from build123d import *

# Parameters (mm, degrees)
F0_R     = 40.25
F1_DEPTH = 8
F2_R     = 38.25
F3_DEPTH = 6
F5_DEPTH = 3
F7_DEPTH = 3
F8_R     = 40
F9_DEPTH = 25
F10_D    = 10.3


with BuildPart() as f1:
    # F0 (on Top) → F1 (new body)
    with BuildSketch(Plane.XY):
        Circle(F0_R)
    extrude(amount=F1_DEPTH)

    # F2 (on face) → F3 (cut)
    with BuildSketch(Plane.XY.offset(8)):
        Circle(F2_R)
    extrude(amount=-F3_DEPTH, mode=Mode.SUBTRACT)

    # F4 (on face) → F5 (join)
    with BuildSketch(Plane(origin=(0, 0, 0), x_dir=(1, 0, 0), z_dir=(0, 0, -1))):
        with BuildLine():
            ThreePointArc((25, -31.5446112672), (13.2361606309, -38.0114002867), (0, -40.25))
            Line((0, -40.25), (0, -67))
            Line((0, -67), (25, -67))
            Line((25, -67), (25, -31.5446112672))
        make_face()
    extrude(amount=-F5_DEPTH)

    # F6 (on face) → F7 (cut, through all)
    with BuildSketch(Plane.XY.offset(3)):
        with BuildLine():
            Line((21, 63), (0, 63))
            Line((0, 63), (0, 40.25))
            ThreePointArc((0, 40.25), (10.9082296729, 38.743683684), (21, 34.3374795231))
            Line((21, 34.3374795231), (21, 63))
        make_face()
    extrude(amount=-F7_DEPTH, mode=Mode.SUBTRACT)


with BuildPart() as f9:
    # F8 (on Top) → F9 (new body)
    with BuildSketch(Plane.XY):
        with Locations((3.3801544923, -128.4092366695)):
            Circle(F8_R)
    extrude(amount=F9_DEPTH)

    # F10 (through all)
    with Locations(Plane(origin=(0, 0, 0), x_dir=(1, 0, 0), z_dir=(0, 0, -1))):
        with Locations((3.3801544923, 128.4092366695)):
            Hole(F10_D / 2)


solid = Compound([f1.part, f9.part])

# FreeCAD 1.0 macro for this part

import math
import FreeCAD as App
import Part
import Sketcher
from FreeCAD import Vector
Q = App.Units.Quantity

doc = App.newDocument("Part")
body = doc.addObject("PartDesign::Body", "Body")

sketch1 = body.newObject("Sketcher::SketchObject", "Sketch")
sketch1.AttachmentSupport = (doc.getObject("XY_Plane"), [""])
sketch1.MapMode = "FlatFace"
sketch1.addGeometry(Part.Circle(Vector(0, 0, 0), Vector(0, 0, 1), 40), False)
sketch1.addConstraint(Sketcher.Constraint("Coincident", 0, 3, -1, 1))
sketch1.addConstraint(Sketcher.Constraint("Diameter", 0, Q("80.5 mm")))
pad1 = body.newObject("PartDesign::Pad", "Pad")
pad1.Profile = sketch1
pad1.Length = 8

sketch2 = body.newObject("Sketcher::SketchObject", "Sketch001")
sketch2.AttachmentSupport = (doc.getObject("XY_Plane"), [""])
sketch2.MapMode = "FlatFace"
sketch2.AttachmentOffset = App.Placement(Vector(0, 0, 8), App.Rotation())
sketch2.addGeometry(Part.Circle(Vector(0, 0, 0), Vector(0, 0, 1), 38), False)
sketch2.addConstraint(Sketcher.Constraint("Coincident", 0, 3, -1, 1))
sketch2.addConstraint(Sketcher.Constraint("Diameter", 0, Q("76.5 mm")))
pocket1 = body.newObject("PartDesign::Pocket", "Pocket")
pocket1.Profile = sketch2
pocket1.Length = 6

sketch3 = body.newObject("Sketcher::SketchObject", "Sketch002")
sketch3.AttachmentSupport = (doc.getObject("XY_Plane"), [""])
sketch3.MapMode = "FlatFace"
sketch3.addGeometry(Part.ArcOfCircle(Part.Circle(Vector(0, 0, 0), Vector(0, 0, 1), 40), math.radians(52), math.radians(90)), False)
sketch3.addGeometry(Part.LineSegment(Vector(0, 40, 0), Vector(0, 67, 0)), False)
sketch3.addGeometry(Part.LineSegment(Vector(0, 67, 0), Vector(25, 67, 0)), False)
sketch3.addGeometry(Part.LineSegment(Vector(25, 67, 0), Vector(25, 32, 0)), False)
sketch3.addConstraint(Sketcher.Constraint("Coincident", 0, 2, 1, 1))
sketch3.addConstraint(Sketcher.Constraint("Coincident", 1, 2, 2, 1))
sketch3.addConstraint(Sketcher.Constraint("Coincident", 2, 2, 3, 1))
sketch3.addConstraint(Sketcher.Constraint("Coincident", 3, 2, 0, 1))
sketch3.addConstraint(Sketcher.Constraint("Vertical", 1))
sketch3.addConstraint(Sketcher.Constraint("Horizontal", 2))
sketch3.addConstraint(Sketcher.Constraint("Vertical", 3))
sketch3.addConstraint(Sketcher.Constraint("Coincident", 0, 3, -1, 1))
sketch3.addConstraint(Sketcher.Constraint("PointOnObject", 0, 2, -2))
sketch3.addConstraint(Sketcher.Constraint("DistanceX", 2, 1, 2, 2, Q("25 mm")))
sketch3.addConstraint(Sketcher.Constraint("Radius", 0, Q("40.25 mm")))
sketch3.addConstraint(Sketcher.Constraint("DistanceY", -1, 1, 1, 2, Q("67 mm")))
pad2 = body.newObject("PartDesign::Pad", "Pad001")
pad2.Profile = sketch3
pad2.Length = 3

sketch4 = body.newObject("Sketcher::SketchObject", "Sketch003")
sketch4.AttachmentSupport = (doc.getObject("XY_Plane"), [""])
sketch4.MapMode = "FlatFace"
sketch4.AttachmentOffset = App.Placement(Vector(0, 0, 3), App.Rotation())
sketch4.addGeometry(Part.LineSegment(Vector(21, 63, 0), Vector(0, 63, 0)), False)
sketch4.addGeometry(Part.LineSegment(Vector(0, 63, 0), Vector(0, 40, 0)), False)
sketch4.addGeometry(Part.ArcOfCircle(Part.Circle(Vector(0, 0, 0), Vector(0, 0, 1), 40), math.radians(59), math.radians(90)), False)
sketch4.addGeometry(Part.LineSegment(Vector(21, 34, 0), Vector(21, 63, 0)), False)
sketch4.addConstraint(Sketcher.Constraint("Coincident", 0, 2, 1, 1))
sketch4.addConstraint(Sketcher.Constraint("Coincident", 1, 2, 2, 2))
sketch4.addConstraint(Sketcher.Constraint("Coincident", 2, 1, 3, 1))
sketch4.addConstraint(Sketcher.Constraint("Coincident", 3, 2, 0, 1))
sketch4.addConstraint(Sketcher.Constraint("Horizontal", 0))
sketch4.addConstraint(Sketcher.Constraint("Vertical", 1))
sketch4.addConstraint(Sketcher.Constraint("Vertical", 3))
sketch4.addConstraint(Sketcher.Constraint("Coincident", 2, 3, -1, 1))
sketch4.addConstraint(Sketcher.Constraint("PointOnObject", 0, 2, -2))
sketch4.addConstraint(Sketcher.Constraint("DistanceX", 0, 2, 0, 1, Q("21 mm")))
sketch4.addConstraint(Sketcher.Constraint("Radius", 2, Q("40.25 mm")))
sketch4.addConstraint(Sketcher.Constraint("DistanceY", -1, 1, 0, 2, Q("63 mm")))
pocket2 = body.newObject("PartDesign::Pocket", "Pocket001")
pocket2.Profile = sketch4
pocket2.Type = "ThroughAll"
body2 = doc.addObject("PartDesign::Body", "Body001")

sketch5 = body2.newObject("Sketcher::SketchObject", "Sketch004")
sketch5.AttachmentSupport = (doc.getObject("XY_Plane001"), [""])
sketch5.MapMode = "FlatFace"
sketch5.addGeometry(Part.Circle(Vector(3, -128, 0), Vector(0, 0, 1), 40), False)
sketch5.addConstraint(Sketcher.Constraint("Diameter", 0, Q("80 mm")))
sketch5.addConstraint(Sketcher.Constraint("DistanceX", -1, 1, 0, 3, Q("3.380154 mm")))
sketch5.addConstraint(Sketcher.Constraint("DistanceY", 0, 3, -1, 1, Q("128.409237 mm")))
pad3 = body2.newObject("PartDesign::Pad", "Pad002")
pad3.Profile = sketch5
pad3.Length = 25

sketch6 = body2.newObject("Sketcher::SketchObject", "Sketch005")
sketch6.AttachmentSupport = (doc.getObject("XY_Plane001"), [""])
sketch6.MapMode = "FlatFace"
sketch6.addGeometry(Part.Circle(Vector(3, -128, 0), Vector(0, 0, 1), 5), False)
sketch6.addConstraint(Sketcher.Constraint("Diameter", 0, Q("10.3 mm")))
sketch6.addConstraint(Sketcher.Constraint("DistanceX", -1, 1, 0, 3, Q("3.380154 mm")))
sketch6.addConstraint(Sketcher.Constraint("DistanceY", 0, 3, -1, 1, Q("128.409237 mm")))
doc.recompute()
hole = body2.newObject("PartDesign::Hole", "Hole")
hole.Profile = sketch6
hole.ThreadType = "None"
hole.Diameter = 10.3
hole.DepthType = "ThroughAll"
hole.Reversed = True

doc.recompute()
